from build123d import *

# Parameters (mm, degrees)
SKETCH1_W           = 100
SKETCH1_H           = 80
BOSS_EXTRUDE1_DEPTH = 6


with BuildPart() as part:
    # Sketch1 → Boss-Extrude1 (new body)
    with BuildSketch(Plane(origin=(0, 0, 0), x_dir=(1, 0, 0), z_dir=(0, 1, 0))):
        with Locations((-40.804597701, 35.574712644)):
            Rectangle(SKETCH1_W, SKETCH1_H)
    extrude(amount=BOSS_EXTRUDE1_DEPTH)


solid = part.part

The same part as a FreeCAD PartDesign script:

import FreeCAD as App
import Part
import Sketcher


def add_polygon(sketch, points):
    """Adds a closed chain of lines whose ends are joined by coincident constraints."""
    first, n = sketch.GeometryCount, len(points)
    for a, b in zip(points, points[1:] + points[:1]):
        sketch.addGeometry(Part.LineSegment(App.Vector(*a, 0), App.Vector(*b, 0)), False)
    for i in range(n):
        sketch.addConstraint(Sketcher.Constraint("Coincident", first + i, 2, first + (i + 1) % n, 1))

doc = App.newDocument("Part")
body = doc.addObject("PartDesign::Body", "Body")

# Sketch on XZ plane
sketch1 = body.newObject("Sketcher::SketchObject", "Sketch")
sketch1.AttachmentSupport = (doc.getObject("XZ_Plane"), [""])
sketch1.MapMode = "FlatFace"
add_polygon(sketch1, [(-90.804598, -75.574713), (-90.804598, 4.425287), (9.195402, 4.425287), (9.195402, -75.574713)])  # lines 0-3
sketch1.addConstraint([
    Sketcher.Constraint("Vertical", 0),
    Sketcher.Constraint("Horizontal", 1),
    Sketcher.Constraint("Vertical", 2),
    Sketcher.Constraint("Horizontal", 3),
    Sketcher.Constraint("DistanceX", 1, 1, 1, 2, 100.0),
    Sketcher.Constraint("DistanceY", 0, 1, 0, 2, 80.0),
    Sketcher.Constraint("DistanceX", 0, 2, -1, 1, 90.804598),
    Sketcher.Constraint("DistanceY", -1, 1, 0, 2, 4.425287),
])
pad1 = body.newObject("PartDesign::Pad", "Pad")
pad1.Profile = sketch1
pad1.Length = 6
pad1.Reversed = True

doc.recompute()
